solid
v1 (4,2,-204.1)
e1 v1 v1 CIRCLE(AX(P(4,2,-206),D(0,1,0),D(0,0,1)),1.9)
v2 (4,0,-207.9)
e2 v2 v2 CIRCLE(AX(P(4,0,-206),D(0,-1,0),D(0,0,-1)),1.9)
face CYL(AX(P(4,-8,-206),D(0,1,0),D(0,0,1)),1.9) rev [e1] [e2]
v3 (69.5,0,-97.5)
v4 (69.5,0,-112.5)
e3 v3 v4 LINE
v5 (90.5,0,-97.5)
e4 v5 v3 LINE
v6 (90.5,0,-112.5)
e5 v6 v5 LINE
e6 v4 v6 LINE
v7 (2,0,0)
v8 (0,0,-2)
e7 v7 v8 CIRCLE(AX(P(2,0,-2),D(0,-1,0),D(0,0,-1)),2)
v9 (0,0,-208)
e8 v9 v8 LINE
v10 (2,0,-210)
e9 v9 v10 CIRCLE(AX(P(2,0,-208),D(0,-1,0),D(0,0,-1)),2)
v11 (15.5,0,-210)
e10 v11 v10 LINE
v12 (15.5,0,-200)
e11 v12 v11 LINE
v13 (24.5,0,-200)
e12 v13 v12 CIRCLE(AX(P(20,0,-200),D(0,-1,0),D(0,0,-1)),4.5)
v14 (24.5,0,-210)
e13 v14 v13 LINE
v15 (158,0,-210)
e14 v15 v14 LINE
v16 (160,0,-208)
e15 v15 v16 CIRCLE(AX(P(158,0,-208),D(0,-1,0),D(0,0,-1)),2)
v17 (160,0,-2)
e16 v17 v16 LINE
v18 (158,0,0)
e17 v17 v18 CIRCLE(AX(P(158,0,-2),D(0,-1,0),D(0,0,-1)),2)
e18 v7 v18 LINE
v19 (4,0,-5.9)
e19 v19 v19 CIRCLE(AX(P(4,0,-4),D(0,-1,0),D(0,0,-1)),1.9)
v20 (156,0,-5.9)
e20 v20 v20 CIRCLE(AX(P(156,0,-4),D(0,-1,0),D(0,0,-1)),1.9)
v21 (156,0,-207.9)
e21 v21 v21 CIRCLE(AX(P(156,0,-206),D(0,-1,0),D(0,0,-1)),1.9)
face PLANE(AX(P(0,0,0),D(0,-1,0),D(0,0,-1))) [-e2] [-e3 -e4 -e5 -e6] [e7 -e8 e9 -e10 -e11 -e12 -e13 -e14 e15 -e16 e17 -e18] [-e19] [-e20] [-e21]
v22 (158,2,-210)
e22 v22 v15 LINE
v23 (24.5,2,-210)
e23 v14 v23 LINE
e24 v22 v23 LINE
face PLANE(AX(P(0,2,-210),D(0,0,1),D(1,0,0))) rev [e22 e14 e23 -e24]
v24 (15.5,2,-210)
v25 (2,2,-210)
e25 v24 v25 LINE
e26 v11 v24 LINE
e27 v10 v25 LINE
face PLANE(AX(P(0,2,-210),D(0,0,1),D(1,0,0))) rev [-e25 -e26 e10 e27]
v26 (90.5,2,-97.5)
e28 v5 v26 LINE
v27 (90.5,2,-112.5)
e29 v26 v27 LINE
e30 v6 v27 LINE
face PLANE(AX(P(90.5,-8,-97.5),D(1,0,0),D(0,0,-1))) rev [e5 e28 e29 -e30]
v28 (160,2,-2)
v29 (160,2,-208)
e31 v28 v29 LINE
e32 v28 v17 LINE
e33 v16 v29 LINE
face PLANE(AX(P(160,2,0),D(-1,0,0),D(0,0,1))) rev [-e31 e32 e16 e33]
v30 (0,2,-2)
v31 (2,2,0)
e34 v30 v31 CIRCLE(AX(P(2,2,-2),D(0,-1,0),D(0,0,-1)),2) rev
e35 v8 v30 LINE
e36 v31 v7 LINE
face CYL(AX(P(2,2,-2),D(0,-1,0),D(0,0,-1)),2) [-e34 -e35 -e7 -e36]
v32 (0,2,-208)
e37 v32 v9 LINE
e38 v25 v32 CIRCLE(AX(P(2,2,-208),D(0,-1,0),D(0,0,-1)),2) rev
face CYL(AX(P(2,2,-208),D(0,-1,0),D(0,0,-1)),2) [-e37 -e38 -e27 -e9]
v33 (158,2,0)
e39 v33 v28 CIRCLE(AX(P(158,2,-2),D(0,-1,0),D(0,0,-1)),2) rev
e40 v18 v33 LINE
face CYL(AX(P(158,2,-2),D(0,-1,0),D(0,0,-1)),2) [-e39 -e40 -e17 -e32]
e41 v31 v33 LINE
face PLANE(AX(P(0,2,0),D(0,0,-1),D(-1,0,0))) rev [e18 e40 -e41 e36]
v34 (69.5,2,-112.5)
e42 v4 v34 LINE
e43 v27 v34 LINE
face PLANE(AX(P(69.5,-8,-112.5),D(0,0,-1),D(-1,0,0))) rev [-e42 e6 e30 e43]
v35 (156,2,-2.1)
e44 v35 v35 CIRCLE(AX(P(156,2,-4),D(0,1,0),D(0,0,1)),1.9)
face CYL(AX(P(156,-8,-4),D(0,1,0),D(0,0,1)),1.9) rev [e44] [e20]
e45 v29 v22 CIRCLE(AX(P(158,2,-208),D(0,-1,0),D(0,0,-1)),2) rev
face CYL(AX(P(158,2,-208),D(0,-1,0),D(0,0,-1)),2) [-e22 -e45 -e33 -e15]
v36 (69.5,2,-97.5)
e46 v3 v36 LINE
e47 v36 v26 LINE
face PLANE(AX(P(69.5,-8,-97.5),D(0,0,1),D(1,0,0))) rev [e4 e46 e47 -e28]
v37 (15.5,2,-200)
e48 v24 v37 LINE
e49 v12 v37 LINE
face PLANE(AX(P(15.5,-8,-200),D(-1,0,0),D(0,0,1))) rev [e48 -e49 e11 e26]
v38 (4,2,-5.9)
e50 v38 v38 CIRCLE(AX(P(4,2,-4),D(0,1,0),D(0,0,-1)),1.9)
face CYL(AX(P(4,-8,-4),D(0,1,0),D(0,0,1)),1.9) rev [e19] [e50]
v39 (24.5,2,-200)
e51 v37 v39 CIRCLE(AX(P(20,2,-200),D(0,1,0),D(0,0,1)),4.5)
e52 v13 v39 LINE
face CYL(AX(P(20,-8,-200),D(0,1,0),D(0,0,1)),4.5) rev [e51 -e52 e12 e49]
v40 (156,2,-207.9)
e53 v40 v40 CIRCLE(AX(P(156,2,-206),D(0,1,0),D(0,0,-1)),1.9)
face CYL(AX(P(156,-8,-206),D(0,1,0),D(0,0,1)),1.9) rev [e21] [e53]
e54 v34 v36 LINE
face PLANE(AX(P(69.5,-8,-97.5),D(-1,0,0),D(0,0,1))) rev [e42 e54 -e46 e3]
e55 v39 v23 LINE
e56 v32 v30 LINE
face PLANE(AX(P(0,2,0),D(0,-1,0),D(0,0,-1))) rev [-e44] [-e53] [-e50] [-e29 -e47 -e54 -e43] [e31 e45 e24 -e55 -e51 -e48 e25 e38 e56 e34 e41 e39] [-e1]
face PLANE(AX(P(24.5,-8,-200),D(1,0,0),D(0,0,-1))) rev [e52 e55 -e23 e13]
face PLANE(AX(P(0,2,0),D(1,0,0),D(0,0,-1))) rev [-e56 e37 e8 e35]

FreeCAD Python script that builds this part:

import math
import FreeCAD as App
import Part
import Sketcher

V = App.Vector


def edges_at(feature, points):
    """Names of the edges that pass closest to the given points."""
    edges = feature.Shape.Edges
    near = lambda p: min(range(len(edges)), key=lambda i: edges[i].distToShape(Part.Vertex(*p))[0])
    return sorted({f"Edge{near(p) + 1}" for p in points})

doc = App.newDocument("Part")
body = doc.addObject("PartDesign::Body", "Body")

# Sketch on XZ plane
sketch1 = doc.addObject("Sketcher::SketchObject", "Sketch")
body.addObject(sketch1)
sketch1.AttachmentSupport = (doc.XZ_Plane, [""])
sketch1.MapMode = "FlatFace"
sketch1.addGeometry([
    Part.LineSegment(V(0, -210, 0), V(0, 0, 0)),
    Part.LineSegment(V(0, 0, 0), V(160, 0, 0)),
    Part.LineSegment(V(160, 0, 0), V(160, -210, 0)),
    Part.LineSegment(V(160, -210, 0), V(0, -210, 0)),
], False)
sketch1.addConstraint([
    Sketcher.Constraint("Coincident", 0, 2, 1, 1),
    Sketcher.Constraint("Coincident", 1, 2, 2, 1),
    Sketcher.Constraint("Coincident", 2, 2, 3, 1),
    Sketcher.Constraint("Coincident", 3, 2, 0, 1),
    Sketcher.Constraint("Vertical", 0),
    Sketcher.Constraint("Horizontal", 1),
    Sketcher.Constraint("Vertical", 2),
    Sketcher.Constraint("Horizontal", 3),
    Sketcher.Constraint("Coincident", 0, 2, -1, 1),
    Sketcher.Constraint("DistanceX", 1, 1, 1, 2, 160.0),
    Sketcher.Constraint("DistanceY", 0, 1, 0, 2, 210.0),
])
pad1 = doc.addObject("PartDesign::Pad", "Pad")
body.addObject(pad1)
pad1.Profile = sketch1
pad1.Length = 2
pad1.Reversed = True

# Sketch on XZ plane
sketch2 = doc.addObject("Sketcher::SketchObject", "Sketch001")
body.addObject(sketch2)
sketch2.AttachmentSupport = (doc.XZ_Plane, [""])
sketch2.MapMode = "FlatFace"
sketch2.AttachmentOffset = App.Placement(V(0, 0, -2), App.Rotation())
sketch2.addGeometry([
    Part.Circle(V(4, -206, 0), V(0, 0, 1), 1.9),  # 0
    Part.Circle(V(156, -206, 0), V(0, 0, 1), 1.9),  # 1
    Part.Circle(V(156, -4, 0), V(0, 0, 1), 1.9),  # 2
    Part.Circle(V(4, -4, 0), V(0, 0, 1), 1.9),  # 3
    Part.LineSegment(V(24.5, -200, 0), V(24.5, -210, 0)),  # 4
    Part.LineSegment(V(24.5, -210, 0), V(15.5, -210, 0)),  # 5
    Part.LineSegment(V(15.5, -210, 0), V(15.5, -200, 0)),  # 6
    Part.ArcOfCircle(Part.Circle(V(20, -200, 0), V(0, 0, 1), 4.5), math.radians(0), math.radians(180)),  # 7
], False)
sketch2.addConstraint([
    Sketcher.Constraint("Coincident", 4, 2, 5, 1),
    Sketcher.Constraint("Coincident", 5, 2, 6, 1),
    Sketcher.Constraint("Tangent", 6, 2, 7, 2),
    Sketcher.Constraint("Tangent", 7, 1, 4, 1),
    Sketcher.Constraint("Vertical", 4),
    Sketcher.Constraint("Horizontal", 5),
    Sketcher.Constraint("Vertical", 6),
    Sketcher.Constraint("Equal", 0, 1),
    Sketcher.Constraint("Equal", 1, 2),
    Sketcher.Constraint("Equal", 2, 3),
    Sketcher.Constraint("Horizontal", 0, 3, 1, 3),
    Sketcher.Constraint("Horizontal", 2, 3, 3, 3),
    Sketcher.Constraint("Vertical", 1, 3, 2, 3),
    Sketcher.Constraint("Vertical", 0, 3, 3, 3),
    Sketcher.Constraint("Diameter", 0, 3.8),
    Sketcher.Constraint("Radius", 7, 4.5),
    Sketcher.Constraint("DistanceY", 4, 2, 4, 1, 10.0),
    Sketcher.Constraint("DistanceX", -1, 1, 0, 3, 4.0),
    Sketcher.Constraint("DistanceY", 0, 3, -1, 1, 206.0),
    Sketcher.Constraint("DistanceX", -1, 1, 1, 3, 156.0),
    Sketcher.Constraint("DistanceY", 2, 3, -1, 1, 4.0),
    Sketcher.Constraint("DistanceX", -1, 1, 7, 3, 20.0),
    Sketcher.Constraint("DistanceY", 7, 3, -1, 1, 200.0),
])
pocket1 = doc.addObject("PartDesign::Pocket", "Pocket")
body.addObject(pocket1)
pocket1.Profile = sketch2
pocket1.Length = 10
pocket1.Reversed = True
doc.recompute()

fillet = doc.addObject("PartDesign::Fillet", "Fillet")
body.addObject(fillet)
fillet.Base = (pocket1, edges_at(pocket1, [
    (0, 1, -210),
    (160, 1, -210),
    (160, 1, 0),
    (0, 1, 0),
]))
fillet.Radius = 2

# Sketch on XZ plane
sketch3 = doc.addObject("Sketcher::SketchObject", "Sketch002")
body.addObject(sketch3)
sketch3.AttachmentSupport = (doc.XZ_Plane, [""])
sketch3.MapMode = "FlatFace"
sketch3.AttachmentOffset = App.Placement(V(0, 0, -2), App.Rotation())
sketch3.addGeometry([
    Part.LineSegment(V(70, -112, 0), V(70, -98, 0)),
    Part.LineSegment(V(70, -98, 0), V(90, -98, 0)),
    Part.LineSegment(V(90, -98, 0), V(90, -112, 0)),
    Part.LineSegment(V(90, -112, 0), V(70, -112, 0)),
], False)
sketch3.addConstraint([
    Sketcher.Constraint("Coincident", 0, 2, 1, 1),
    Sketcher.Constraint("Coincident", 1, 2, 2, 1),
    Sketcher.Constraint("Coincident", 2, 2, 3, 1),
    Sketcher.Constraint("Coincident", 3, 2, 0, 1),
    Sketcher.Constraint("Vertical", 0),
    Sketcher.Constraint("Horizontal", 1),
    Sketcher.Constraint("Vertical", 2),
    Sketcher.Constraint("Horizontal", 3),
    Sketcher.Constraint("DistanceX", 1, 1, 1, 2, 21.0),
    Sketcher.Constraint("DistanceY", 0, 1, 0, 2, 15.0),
    Sketcher.Constraint("DistanceX", -1, 1, 0, 2, 69.5),
    Sketcher.Constraint("DistanceY", 0, 2, -1, 1, 97.5),
])
pocket2 = doc.addObject("PartDesign::Pocket", "Pocket001")
body.addObject(pocket2)
pocket2.Profile = sketch3
pocket2.Length = 10
pocket2.Reversed = True

doc.recompute()
